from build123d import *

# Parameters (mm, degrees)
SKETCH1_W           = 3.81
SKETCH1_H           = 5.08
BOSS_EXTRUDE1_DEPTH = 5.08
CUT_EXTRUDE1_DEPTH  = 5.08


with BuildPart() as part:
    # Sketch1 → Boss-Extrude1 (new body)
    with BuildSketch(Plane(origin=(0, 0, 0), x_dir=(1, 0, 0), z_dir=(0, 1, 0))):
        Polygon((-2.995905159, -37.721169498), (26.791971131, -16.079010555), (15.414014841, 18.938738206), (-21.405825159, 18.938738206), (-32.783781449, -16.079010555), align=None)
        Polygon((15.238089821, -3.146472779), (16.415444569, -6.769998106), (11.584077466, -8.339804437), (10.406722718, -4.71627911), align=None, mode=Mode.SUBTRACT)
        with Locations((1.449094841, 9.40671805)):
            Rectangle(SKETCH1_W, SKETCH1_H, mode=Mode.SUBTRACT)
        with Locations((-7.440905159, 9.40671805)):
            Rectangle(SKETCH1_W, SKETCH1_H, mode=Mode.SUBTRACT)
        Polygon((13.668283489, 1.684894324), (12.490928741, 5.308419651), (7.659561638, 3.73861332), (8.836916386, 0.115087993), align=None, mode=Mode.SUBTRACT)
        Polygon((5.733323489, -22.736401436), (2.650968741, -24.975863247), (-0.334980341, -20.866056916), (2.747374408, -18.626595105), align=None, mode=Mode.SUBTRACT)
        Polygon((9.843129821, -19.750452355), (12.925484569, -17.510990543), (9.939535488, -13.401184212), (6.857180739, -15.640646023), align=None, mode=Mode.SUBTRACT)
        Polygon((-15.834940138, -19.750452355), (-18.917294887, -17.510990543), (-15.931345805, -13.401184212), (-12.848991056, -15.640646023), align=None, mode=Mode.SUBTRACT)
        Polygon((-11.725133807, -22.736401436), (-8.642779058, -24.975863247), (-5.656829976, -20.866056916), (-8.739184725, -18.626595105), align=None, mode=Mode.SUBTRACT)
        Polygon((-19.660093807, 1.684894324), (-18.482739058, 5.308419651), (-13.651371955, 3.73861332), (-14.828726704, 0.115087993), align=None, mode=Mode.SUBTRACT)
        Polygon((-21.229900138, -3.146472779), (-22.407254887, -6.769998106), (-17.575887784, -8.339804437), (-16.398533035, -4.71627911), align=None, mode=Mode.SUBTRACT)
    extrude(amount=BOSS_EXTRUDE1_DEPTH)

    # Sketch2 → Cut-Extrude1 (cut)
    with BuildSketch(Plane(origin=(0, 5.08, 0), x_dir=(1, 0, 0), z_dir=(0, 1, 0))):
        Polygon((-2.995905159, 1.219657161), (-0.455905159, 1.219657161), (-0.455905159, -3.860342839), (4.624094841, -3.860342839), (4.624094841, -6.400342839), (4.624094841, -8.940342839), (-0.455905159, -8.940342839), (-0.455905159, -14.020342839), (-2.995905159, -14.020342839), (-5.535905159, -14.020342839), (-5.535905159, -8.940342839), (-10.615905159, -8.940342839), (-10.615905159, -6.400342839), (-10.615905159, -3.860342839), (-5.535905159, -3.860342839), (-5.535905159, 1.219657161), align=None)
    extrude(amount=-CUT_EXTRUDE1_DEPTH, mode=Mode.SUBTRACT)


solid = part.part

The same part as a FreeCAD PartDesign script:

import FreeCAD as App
import Part
import Sketcher
from FreeCAD import Vector
Q = App.Units.Quantity

doc = App.newDocument("Part")
body = doc.addObject("PartDesign::Body", "Body")

# Sketch on XZ plane
sketch1 = body.newObject("Sketcher::SketchObject", "Sketch")
sketch1.AttachmentSupport = (doc.getObject("XZ_Plane"), [""])
sketch1.MapMode = "FlatFace"
sketch1.addGeometry([
    Part.LineSegment(Vector(-3, 37.7, 0), Vector(26.8, 16.1, 0)),  # 0
    Part.LineSegment(Vector(26.8, 16.1, 0), Vector(15.4, -18.9, 0)),  # 1
    Part.LineSegment(Vector(15.4, -18.9, 0), Vector(-21.4, -18.9, 0)),  # 2
    Part.LineSegment(Vector(-21.4, -18.9, 0), Vector(-32.8, 16.1, 0)),  # 3
    Part.LineSegment(Vector(-32.8, 16.1, 0), Vector(-3, 37.7, 0)),  # 4
    Part.LineSegment(Vector(-12.8, 15.6, 0), Vector(-15.8, 19.8, 0)),  # 5
    Part.LineSegment(Vector(-15.8, 19.8, 0), Vector(-18.9, 17.5, 0)),  # 6
    Part.LineSegment(Vector(-18.9, 17.5, 0), Vector(-15.9, 13.4, 0)),  # 7
    Part.LineSegment(Vector(-15.9, 13.4, 0), Vector(-12.8, 15.6, 0)),  # 8
    Part.LineSegment(Vector(-8.6, 25, 0), Vector(-11.7, 22.7, 0)),  # 9
    Part.LineSegment(Vector(-11.7, 22.7, 0), Vector(-8.7, 18.6, 0)),  # 10
    Part.LineSegment(Vector(-8.7, 18.6, 0), Vector(-5.7, 20.9, 0)),  # 11
    Part.LineSegment(Vector(-5.7, 20.9, 0), Vector(-8.6, 25, 0)),  # 12
    Part.LineSegment(Vector(2.7, 18.6, 0), Vector(5.7, 22.7, 0)),  # 13
    Part.LineSegment(Vector(5.7, 22.7, 0), Vector(2.7, 25, 0)),  # 14
    Part.LineSegment(Vector(2.7, 25, 0), Vector(-0.3, 20.9, 0)),  # 15
    Part.LineSegment(Vector(-0.3, 20.9, 0), Vector(2.7, 18.6, 0)),  # 16
    Part.LineSegment(Vector(12.9, 17.5, 0), Vector(9.8, 19.8, 0)),  # 17
    Part.LineSegment(Vector(9.8, 19.8, 0), Vector(6.9, 15.6, 0)),  # 18
    Part.LineSegment(Vector(6.9, 15.6, 0), Vector(9.9, 13.4, 0)),  # 19
    Part.LineSegment(Vector(9.9, 13.4, 0), Vector(12.9, 17.5, 0)),  # 20
    Part.LineSegment(Vector(-22.4, 6.8, 0), Vector(-21.2, 3.1, 0)),  # 21
    Part.LineSegment(Vector(-21.2, 3.1, 0), Vector(-16.4, 4.7, 0)),  # 22
    Part.LineSegment(Vector(-16.4, 4.7, 0), Vector(-17.6, 8.3, 0)),  # 23
    Part.LineSegment(Vector(-17.6, 8.3, 0), Vector(-22.4, 6.8, 0)),  # 24
    Part.LineSegment(Vector(-14.8, -0.1, 0), Vector(-19.7, -1.7, 0)),  # 25
    Part.LineSegment(Vector(-19.7, -1.7, 0), Vector(-18.5, -5.3, 0)),  # 26
    Part.LineSegment(Vector(-18.5, -5.3, 0), Vector(-13.7, -3.7, 0)),  # 27
    Part.LineSegment(Vector(-13.7, -3.7, 0), Vector(-14.8, -0.1, 0)),  # 28
    Part.LineSegment(Vector(-5.5, -6.9, 0), Vector(-9.3, -6.9, 0)),  # 29
    Part.LineSegment(Vector(-9.3, -6.9, 0), Vector(-9.3, -11.9, 0)),  # 30
    Part.LineSegment(Vector(-9.3, -11.9, 0), Vector(-5.5, -11.9, 0)),  # 31
    Part.LineSegment(Vector(-5.5, -11.9, 0), Vector(-5.5, -6.9, 0)),  # 32
    Part.LineSegment(Vector(10.4, 4.7, 0), Vector(15.2, 3.1, 0)),  # 33
    Part.LineSegment(Vector(15.2, 3.1, 0), Vector(16.4, 6.8, 0)),  # 34
    Part.LineSegment(Vector(16.4, 6.8, 0), Vector(11.6, 8.3, 0)),  # 35
    Part.LineSegment(Vector(11.6, 8.3, 0), Vector(10.4, 4.7, 0)),  # 36
    Part.LineSegment(Vector(12.5, -5.3, 0), Vector(13.7, -1.7, 0)),  # 37
    Part.LineSegment(Vector(13.7, -1.7, 0), Vector(8.8, -0.1, 0)),  # 38
    Part.LineSegment(Vector(8.8, -0.1, 0), Vector(7.7, -3.7, 0)),  # 39
    Part.LineSegment(Vector(7.7, -3.7, 0), Vector(12.5, -5.3, 0)),  # 40
    Part.LineSegment(Vector(3.4, -6.9, 0), Vector(-0.5, -6.9, 0)),  # 41
    Part.LineSegment(Vector(-0.5, -6.9, 0), Vector(-0.5, -11.9, 0)),  # 42
    Part.LineSegment(Vector(-0.5, -11.9, 0), Vector(3.4, -11.9, 0)),  # 43
    Part.LineSegment(Vector(3.4, -11.9, 0), Vector(3.4, -6.9, 0)),  # 44
], False)
sketch1.addConstraint([
    Sketcher.Constraint("Coincident", 0, 2, 1, 1),
    Sketcher.Constraint("Coincident", 1, 2, 2, 1),
    Sketcher.Constraint("Coincident", 2, 2, 3, 1),
    Sketcher.Constraint("Coincident", 3, 2, 4, 1),
    Sketcher.Constraint("Coincident", 4, 2, 0, 1),
    Sketcher.Constraint("Coincident", 5, 2, 6, 1),
    Sketcher.Constraint("Coincident", 6, 2, 7, 1),
    Sketcher.Constraint("Coincident", 7, 2, 8, 1),
    Sketcher.Constraint("Coincident", 8, 2, 5, 1),
    Sketcher.Constraint("Coincident", 9, 2, 10, 1),
    Sketcher.Constraint("Coincident", 10, 2, 11, 1),
    Sketcher.Constraint("Coincident", 11, 2, 12, 1),
    Sketcher.Constraint("Coincident", 12, 2, 9, 1),
    Sketcher.Constraint("Coincident", 13, 2, 14, 1),
    Sketcher.Constraint("Coincident", 14, 2, 15, 1),
    Sketcher.Constraint("Coincident", 15, 2, 16, 1),
    Sketcher.Constraint("Coincident", 16, 2, 13, 1),
    Sketcher.Constraint("Coincident", 17, 2, 18, 1),
    Sketcher.Constraint("Coincident", 18, 2, 19, 1),
    Sketcher.Constraint("Coincident", 19, 2, 20, 1),
    Sketcher.Constraint("Coincident", 20, 2, 17, 1),
    Sketcher.Constraint("Coincident", 21, 2, 22, 1),
    Sketcher.Constraint("Coincident", 22, 2, 23, 1),
    Sketcher.Constraint("Coincident", 23, 2, 24, 1),
    Sketcher.Constraint("Coincident", 24, 2, 21, 1),
    Sketcher.Constraint("Coincident", 25, 2, 26, 1),
    Sketcher.Constraint("Coincident", 26, 2, 27, 1),
    Sketcher.Constraint("Coincident", 27, 2, 28, 1),
    Sketcher.Constraint("Coincident", 28, 2, 25, 1),
    Sketcher.Constraint("Coincident", 29, 2, 30, 1),
    Sketcher.Constraint("Coincident", 30, 2, 31, 1),
    Sketcher.Constraint("Coincident", 31, 2, 32, 1),
    Sketcher.Constraint("Coincident", 32, 2, 29, 1),
    Sketcher.Constraint("Coincident", 33, 2, 34, 1),
    Sketcher.Constraint("Coincident", 34, 2, 35, 1),
    Sketcher.Constraint("Coincident", 35, 2, 36, 1),
    Sketcher.Constraint("Coincident", 36, 2, 33, 1),
    Sketcher.Constraint("Coincident", 37, 2, 38, 1),
    Sketcher.Constraint("Coincident", 38, 2, 39, 1),
    Sketcher.Constraint("Coincident", 39, 2, 40, 1),
    Sketcher.Constraint("Coincident", 40, 2, 37, 1),
    Sketcher.Constraint("Coincident", 41, 2, 42, 1),
    Sketcher.Constraint("Coincident", 42, 2, 43, 1),
    Sketcher.Constraint("Coincident", 43, 2, 44, 1),
    Sketcher.Constraint("Coincident", 44, 2, 41, 1),
    Sketcher.Constraint("Horizontal", 2),
    Sketcher.Constraint("Horizontal", 29),
    Sketcher.Constraint("Vertical", 30),
    Sketcher.Constraint("Horizontal", 31),
    Sketcher.Constraint("Vertical", 32),
    Sketcher.Constraint("Horizontal", 41),
    Sketcher.Constraint("Vertical", 42),
    Sketcher.Constraint("Horizontal", 43),
    Sketcher.Constraint("Vertical", 44),
    Sketcher.Constraint("Perpendicular", 4, 5),
    Sketcher.Constraint("Perpendicular", 5, 6),
    Sketcher.Constraint("Perpendicular", 6, 7),
    Sketcher.Constraint("Perpendicular", 7, 8),
    Sketcher.Constraint("Parallel", 8, 9),
    Sketcher.Constraint("Perpendicular", 9, 10),
    Sketcher.Constraint("Perpendicular", 10, 11),
    Sketcher.Constraint("Perpendicular", 11, 12),
    Sketcher.Constraint("Perpendicular", 0, 13),
    Sketcher.Constraint("Perpendicular", 13, 14),
    Sketcher.Constraint("Perpendicular", 14, 15),
    Sketcher.Constraint("Perpendicular", 15, 16),
    Sketcher.Constraint("Parallel", 16, 17),
    Sketcher.Constraint("Perpendicular", 17, 18),
    Sketcher.Constraint("Perpendicular", 18, 19),
    Sketcher.Constraint("Perpendicular", 19, 20),
    Sketcher.Constraint("Parallel", 3, 21),
    Sketcher.Constraint("Perpendicular", 21, 22),
    Sketcher.Constraint("Perpendicular", 22, 23),
    Sketcher.Constraint("Perpendicular", 23, 24),
    Sketcher.Constraint("Parallel", 24, 25),
    Sketcher.Constraint("Perpendicular", 25, 26),
    Sketcher.Constraint("Perpendicular", 26, 27),
    Sketcher.Constraint("Perpendicular", 27, 28),
    Sketcher.Constraint("Perpendicular", 1, 33),
    Sketcher.Constraint("Perpendicular", 33, 34),
    Sketcher.Constraint("Perpendicular", 34, 35),
    Sketcher.Constraint("Perpendicular", 35, 36),
    Sketcher.Constraint("Parallel", 36, 37),
    Sketcher.Constraint("Perpendicular", 37, 38),
    Sketcher.Constraint("Perpendicular", 38, 39),
    Sketcher.Constraint("Perpendicular", 39, 40),
    Sketcher.Constraint("Horizontal", 0, 2, 3, 2),
    Sketcher.Constraint("Horizontal", 9, 2, 13, 2),
    Sketcher.Constraint("Horizontal", 12, 2, 14, 2),
    Sketcher.Constraint("Horizontal", 11, 2, 15, 2),
    Sketcher.Constraint("Horizontal", 5, 2, 17, 2),
    Sketcher.Constraint("Horizontal", 8, 2, 18, 2),
    Sketcher.Constraint("Horizontal", 7, 2, 19, 2),
    Sketcher.Constraint("Horizontal", 21, 2, 33, 2),
    Sketcher.Constraint("Horizontal", 24, 2, 34, 2),
    Sketcher.Constraint("Horizontal", 23, 2, 35, 2),
    Sketcher.Constraint("Horizontal", 25, 2, 37, 2),
    Sketcher.Constraint("Horizontal", 28, 2, 38, 2),
    Sketcher.Constraint("Horizontal", 27, 2, 39, 2),
    Sketcher.Constraint("Horizontal", 32, 2, 41, 2),
    Sketcher.Constraint("Horizontal", 31, 2, 42, 2),
    Sketcher.Constraint("Equal", 31, 41),
    Sketcher.Constraint("Equal", 0, 1),
    Sketcher.Constraint("Equal", 1, 3),
    Sketcher.Constraint("Equal", 3, 4),
    Sketcher.Constraint("Equal", 8, 9),
    Sketcher.Constraint("Equal", 7, 10),
    Sketcher.Constraint("Equal", 19, 21),
    Sketcher.Constraint("Equal", 20, 22),
    Sketcher.Constraint("Equal", 24, 25),
    Sketcher.Constraint("Equal", 23, 26),
    Sketcher.Constraint("DistanceY", 30, 2, 30, 1, Q("0.2 in")),
    Sketcher.Constraint("Angle", 0, Q("-36 deg")),
    Sketcher.Constraint("Angle", 1, Q("-108 deg")),
    Sketcher.Constraint("Distance", 5, Q("0.2 in")),
    Sketcher.Constraint("DistanceX", 29, 2, 29, 1, Q("0.15 in")),
    Sketcher.Constraint("DistanceX", 32, 2, 41, 2, Q("0.2 in")),
    Sketcher.Constraint("Distance", 6, Q("0.15 in")),
    Sketcher.Constraint("DistanceX", 2, 2, 2, 1, Q("1.4496 in")),
    Sketcher.Constraint("DistanceX", 3, 2, -1, 1, Q("1.2907001 in")),
    Sketcher.Constraint("DistanceX", 21, 2, 5, 2, Q("0.2124 in")),
    Sketcher.Constraint("DistanceY", 21, 2, 5, 2, Q("0.6537 in")),
    Sketcher.Constraint("DistanceX", 2, 2, 30, 2, Q("0.4748 in")),
    Sketcher.Constraint("DistanceX", 17, 2, 33, 2, Q("0.2124 in")),
    Sketcher.Constraint("DistanceY", -1, 1, 9, 2, 22.736401),
    Sketcher.Constraint("DistanceX", 21, 2, -1, 1, 21.2299),
    Sketcher.Constraint("DistanceY", -1, 1, 24, 2, 6.769998),
    Sketcher.Constraint("DistanceX", 11, 2, 14, 2, 8.307799),
    Sketcher.Constraint("DistanceY", 25, 2, 23, 2, 10.024699),
    Sketcher.Constraint("DistanceY", 29, 2, 26, 2, 1.558298),
    Sketcher.Constraint("DistanceY", -1, 1, 0, 2, 16.079011),
    Sketcher.Constraint("DistanceX", 11, 2, -1, 1, 5.65683),
    Sketcher.Constraint("DistanceX", -1, 1, 17, 2, 9.84313),
    Sketcher.Constraint("DistanceX", 26, 2, -1, 1, 18.482739),
    Sketcher.Constraint("DistanceX", -1, 1, 39, 2, 7.659562),
])
pad1 = body.newObject("PartDesign::Pad", "Pad")
pad1.Profile = sketch1
pad1.Length = Q("0.2 in")
pad1.Reversed = True

# Sketch on XZ plane
sketch2 = body.newObject("Sketcher::SketchObject", "Sketch001")
sketch2.AttachmentSupport = (doc.getObject("XZ_Plane"), [""])
sketch2.MapMode = "FlatFace"
sketch2.AttachmentOffset = App.Placement(Vector(0, 0, -0.2 * 25.4), App.Rotation())
sketch2.addGeometry([
    Part.LineSegment(Vector(0, -1, 0), Vector(-6, -1, 0)),  # 0
    Part.LineSegment(Vector(-6, -1, 0), Vector(-6, 4, 0)),  # 1
    Part.LineSegment(Vector(-6, 4, 0), Vector(-11, 4, 0)),  # 2
    Part.LineSegment(Vector(-11, 4, 0), Vector(-11, 9, 0)),  # 3
    Part.LineSegment(Vector(-11, 9, 0), Vector(-6, 9, 0)),  # 4
    Part.LineSegment(Vector(-6, 9, 0), Vector(-6, 14, 0)),  # 5
    Part.LineSegment(Vector(-6, 14, 0), Vector(0, 14, 0)),  # 6
    Part.LineSegment(Vector(0, 14, 0), Vector(0, 9, 0)),  # 7
    Part.LineSegment(Vector(0, 9, 0), Vector(5, 9, 0)),  # 8
    Part.LineSegment(Vector(5, 9, 0), Vector(5, 4, 0)),  # 9
    Part.LineSegment(Vector(5, 4, 0), Vector(0, 4, 0)),  # 10
    Part.LineSegment(Vector(0, 4, 0), Vector(0, -1, 0)),  # 11
], False)
sketch2.addConstraint([
    Sketcher.Constraint("Coincident", 0, 2, 1, 1),
    Sketcher.Constraint("Coincident", 1, 2, 2, 1),
    Sketcher.Constraint("Coincident", 2, 2, 3, 1),
    Sketcher.Constraint("Coincident", 3, 2, 4, 1),
    Sketcher.Constraint("Coincident", 4, 2, 5, 1),
    Sketcher.Constraint("Coincident", 5, 2, 6, 1),
    Sketcher.Constraint("Coincident", 6, 2, 7, 1),
    Sketcher.Constraint("Coincident", 7, 2, 8, 1),
    Sketcher.Constraint("Coincident", 8, 2, 9, 1),
    Sketcher.Constraint("Coincident", 9, 2, 10, 1),
    Sketcher.Constraint("Coincident", 10, 2, 11, 1),
    Sketcher.Constraint("Coincident", 11, 2, 0, 1),
    Sketcher.Constraint("Horizontal", 0),
    Sketcher.Constraint("Vertical", 1),
    Sketcher.Constraint("Horizontal", 2),
    Sketcher.Constraint("Vertical", 3),
    Sketcher.Constraint("Horizontal", 4),
    Sketcher.Constraint("Vertical", 5),
    Sketcher.Constraint("Horizontal", 6),
    Sketcher.Constraint("Vertical", 7),
    Sketcher.Constraint("Horizontal", 8),
    Sketcher.Constraint("Vertical", 9),
    Sketcher.Constraint("Horizontal", 10),
    Sketcher.Constraint("Vertical", 11),
    Sketcher.Constraint("Horizontal", 4, 2, 7, 2),
    Sketcher.Constraint("Horizontal", 2, 2, 9, 2),
    Sketcher.Constraint("Vertical", 1, 2, 4, 2),
    Sketcher.Constraint("Vertical", 7, 2, 10, 2),
    Sketcher.Constraint("Equal", 0, 2),
    Sketcher.Constraint("Equal", 6, 8),
    Sketcher.Constraint("Equal", 10, 1),
    Sketcher.Constraint("Equal", 1, 3),
    Sketcher.Constraint("Equal", 3, 5),
    Sketcher.Constraint("DistanceX", 0, 2, 0, 1, Q("0.2 in")),
    Sketcher.Constraint("DistanceX", 0, 2, -1, 1, 5.535905),
    Sketcher.Constraint("DistanceY", 0, 2, -1, 1, 1.219657),
])
pocket1 = body.newObject("PartDesign::Pocket", "Pocket")
pocket1.Profile = sketch2
pocket1.Length = Q("0.2 in")
pocket1.Reversed = True

doc.recompute()
